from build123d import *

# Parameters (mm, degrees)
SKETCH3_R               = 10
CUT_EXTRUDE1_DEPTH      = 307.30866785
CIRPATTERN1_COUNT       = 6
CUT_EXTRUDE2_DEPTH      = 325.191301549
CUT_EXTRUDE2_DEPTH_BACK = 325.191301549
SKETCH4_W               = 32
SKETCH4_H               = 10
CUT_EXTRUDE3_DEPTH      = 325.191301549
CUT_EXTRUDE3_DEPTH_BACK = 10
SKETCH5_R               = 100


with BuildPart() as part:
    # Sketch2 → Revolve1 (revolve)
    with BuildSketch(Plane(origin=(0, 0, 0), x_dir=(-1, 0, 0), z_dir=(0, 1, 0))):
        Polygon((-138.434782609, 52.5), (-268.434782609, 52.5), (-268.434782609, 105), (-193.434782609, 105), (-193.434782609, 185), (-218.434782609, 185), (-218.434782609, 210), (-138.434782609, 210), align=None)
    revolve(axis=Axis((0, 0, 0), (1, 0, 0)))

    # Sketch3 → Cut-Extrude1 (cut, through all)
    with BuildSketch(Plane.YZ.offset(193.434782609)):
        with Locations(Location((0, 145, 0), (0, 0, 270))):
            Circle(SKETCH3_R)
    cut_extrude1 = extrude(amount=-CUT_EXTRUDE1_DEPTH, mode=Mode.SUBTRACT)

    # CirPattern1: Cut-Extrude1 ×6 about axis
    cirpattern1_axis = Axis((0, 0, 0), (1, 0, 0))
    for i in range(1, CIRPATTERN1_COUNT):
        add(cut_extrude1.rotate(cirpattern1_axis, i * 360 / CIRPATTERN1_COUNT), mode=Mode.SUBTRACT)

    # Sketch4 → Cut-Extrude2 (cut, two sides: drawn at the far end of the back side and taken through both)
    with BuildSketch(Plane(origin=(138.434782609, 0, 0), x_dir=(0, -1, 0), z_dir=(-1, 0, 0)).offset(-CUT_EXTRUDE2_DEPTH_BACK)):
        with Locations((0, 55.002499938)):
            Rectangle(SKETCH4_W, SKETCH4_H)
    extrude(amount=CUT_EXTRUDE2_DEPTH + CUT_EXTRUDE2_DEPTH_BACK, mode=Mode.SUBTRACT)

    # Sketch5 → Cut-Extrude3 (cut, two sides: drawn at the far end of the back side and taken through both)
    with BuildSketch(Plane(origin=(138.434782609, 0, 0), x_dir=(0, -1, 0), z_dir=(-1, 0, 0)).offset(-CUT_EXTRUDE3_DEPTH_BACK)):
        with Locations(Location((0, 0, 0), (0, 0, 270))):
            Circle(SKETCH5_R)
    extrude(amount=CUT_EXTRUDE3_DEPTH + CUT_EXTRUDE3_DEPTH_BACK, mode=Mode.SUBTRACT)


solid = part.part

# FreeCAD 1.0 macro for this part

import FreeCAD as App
import Part
import Sketcher

V = App.Vector

doc = App.newDocument("Part")
body = doc.addObject("PartDesign::Body", "Body")

# Sketch on XZ plane
sketch1 = doc.addObject("Sketcher::SketchObject", "Sketch")
body.addObject(sketch1)
sketch1.AttachmentSupport = (doc.XZ_Plane, [""])
sketch1.MapMode = "FlatFace"
sketch1.addGeometry([
    Part.LineSegment(V(268, 52, 0), V(138, 52, 0)),  # 0
    Part.LineSegment(V(138, 52, 0), V(138, 210, 0)),  # 1
    Part.LineSegment(V(138, 210, 0), V(218, 210, 0)),  # 2
    Part.LineSegment(V(218, 210, 0), V(218, 185, 0)),  # 3
    Part.LineSegment(V(218, 185, 0), V(193, 185, 0)),  # 4
    Part.LineSegment(V(193, 185, 0), V(193, 105, 0)),  # 5
    Part.LineSegment(V(193, 105, 0), V(268, 105, 0)),  # 6
    Part.LineSegment(V(268, 105, 0), V(268, 52, 0)),  # 7
], False)
sketch1.addConstraint([
    Sketcher.Constraint("Coincident", 0, 2, 1, 1),
    Sketcher.Constraint("Coincident", 1, 2, 2, 1),
    Sketcher.Constraint("Coincident", 2, 2, 3, 1),
    Sketcher.Constraint("Coincident", 3, 2, 4, 1),
    Sketcher.Constraint("Coincident", 4, 2, 5, 1),
    Sketcher.Constraint("Coincident", 5, 2, 6, 1),
    Sketcher.Constraint("Coincident", 6, 2, 7, 1),
    Sketcher.Constraint("Coincident", 7, 2, 0, 1),
    Sketcher.Constraint("Horizontal", 0),
    Sketcher.Constraint("Vertical", 1),
    Sketcher.Constraint("Horizontal", 2),
    Sketcher.Constraint("Vertical", 3),
    Sketcher.Constraint("Horizontal", 4),
    Sketcher.Constraint("Vertical", 5),
    Sketcher.Constraint("Horizontal", 6),
    Sketcher.Constraint("Vertical", 7),
    Sketcher.Constraint("Equal", 4, 3),
    Sketcher.Constraint("Equal", 2, 5),
    Sketcher.Constraint("DistanceX", 0, 2, 0, 1, 130.0),
    Sketcher.Constraint("DistanceX", 2, 1, 2, 2, 80.0),
    Sketcher.Constraint("DistanceX", 4, 2, 4, 1, 25.0),
    Sketcher.Constraint("DistanceY", 1, 1, 1, 2, 157.5),
    Sketcher.Constraint("DistanceY", -1, 1, 1, 2, 210.0),
    Sketcher.Constraint("DistanceX", -1, 1, 0, 2, 138.434783),
])
revolution = doc.addObject("PartDesign::Revolution", "Revolution")
body.addObject(revolution)
revolution.Profile = sketch1
revolution.ReferenceAxis = (sketch1, ["H_Axis"])
revolution.Angle = 360

# Sketch on YZ plane
sketch2 = doc.addObject("Sketcher::SketchObject", "Sketch001")
body.addObject(sketch2)
sketch2.AttachmentSupport = (doc.YZ_Plane, [""])
sketch2.MapMode = "FlatFace"
sketch2.AttachmentOffset = App.Placement(V(0, 0, 193.434783), App.Rotation())
sketch2.addGeometry(Part.Circle(V(0, 145, 0), V(0, 0, 1), 10), False)
sketch2.addConstraint([
    Sketcher.Constraint("PointOnObject", 0, 3, -2),
    Sketcher.Constraint("Diameter", 0, 20.0),
    Sketcher.Constraint("DistanceY", -1, 1, 0, 3, 145.0),
])
pocket1 = doc.addObject("PartDesign::Pocket", "Pocket")
body.addObject(pocket1)
pocket1.Profile = sketch2
pocket1.Type = "ThroughAll"
doc.recompute()

polarpattern = doc.addObject("PartDesign::PolarPattern", "PolarPattern")
body.addObject(polarpattern)
polarpattern.Originals = [pocket1]
polarpattern.Axis = (doc.X_Axis, [""])
polarpattern.Angle = 360
polarpattern.Occurrences = 6
body.Tip = polarpattern

# Sketch on YZ plane
sketch3 = doc.addObject("Sketcher::SketchObject", "Sketch002")
body.addObject(sketch3)
sketch3.AttachmentSupport = (doc.YZ_Plane, [""])
sketch3.MapMode = "FlatFace"
sketch3.AttachmentOffset = App.Placement(V(0, 0, 138.434783), App.Rotation())
sketch3.addGeometry([
    Part.LineSegment(V(16, 60, 0), V(16, 50, 0)),
    Part.LineSegment(V(16, 50, 0), V(-16, 50, 0)),
    Part.LineSegment(V(-16, 50, 0), V(-16, 60, 0)),
    Part.LineSegment(V(-16, 60, 0), V(16, 60, 0)),
], False)
sketch3.addConstraint([
    Sketcher.Constraint("Coincident", 0, 2, 1, 1),
    Sketcher.Constraint("Coincident", 1, 2, 2, 1),
    Sketcher.Constraint("Coincident", 2, 2, 3, 1),
    Sketcher.Constraint("Coincident", 3, 2, 0, 1),
    Sketcher.Constraint("Vertical", 0),
    Sketcher.Constraint("Horizontal", 1),
    Sketcher.Constraint("Vertical", 2),
    Sketcher.Constraint("Horizontal", 3),
    Sketcher.Constraint("DistanceX", 1, 2, 1, 1, 32.0),
    Sketcher.Constraint("DistanceY", 0, 2, 0, 1, 10.0),
    Sketcher.Constraint("DistanceX", -1, 1, 0, 2, 16.0),
    Sketcher.Constraint("DistanceY", -1, 1, 0, 2, 50.0025),
])
pocket2 = doc.addObject("PartDesign::Pocket", "Pocket001")
body.addObject(pocket2)
pocket2.Profile = sketch3
pocket2.Type = "ThroughAll"
pocket2.Midplane = True

# Sketch on YZ plane
sketch4 = doc.addObject("Sketcher::SketchObject", "Sketch003")
body.addObject(sketch4)
sketch4.AttachmentSupport = (doc.YZ_Plane, [""])
sketch4.MapMode = "FlatFace"
sketch4.AttachmentOffset = App.Placement(V(0, 0, 138.434783), App.Rotation())
sketch4.addGeometry(Part.Circle(V(0, 0, 0), V(0, 0, 1), 100), False)
sketch4.addConstraint([
    Sketcher.Constraint("Coincident", 0, 3, -1, 1),
    Sketcher.Constraint("Diameter", 0, 200.0),
])
pocket3 = doc.addObject("PartDesign::Pocket", "Pocket002")
body.addObject(pocket3)
pocket3.Profile = sketch4
pocket3.Type = "TwoLengths"
pocket3.Length = 325.191302
pocket3.Length2 = 10

doc.recompute()
